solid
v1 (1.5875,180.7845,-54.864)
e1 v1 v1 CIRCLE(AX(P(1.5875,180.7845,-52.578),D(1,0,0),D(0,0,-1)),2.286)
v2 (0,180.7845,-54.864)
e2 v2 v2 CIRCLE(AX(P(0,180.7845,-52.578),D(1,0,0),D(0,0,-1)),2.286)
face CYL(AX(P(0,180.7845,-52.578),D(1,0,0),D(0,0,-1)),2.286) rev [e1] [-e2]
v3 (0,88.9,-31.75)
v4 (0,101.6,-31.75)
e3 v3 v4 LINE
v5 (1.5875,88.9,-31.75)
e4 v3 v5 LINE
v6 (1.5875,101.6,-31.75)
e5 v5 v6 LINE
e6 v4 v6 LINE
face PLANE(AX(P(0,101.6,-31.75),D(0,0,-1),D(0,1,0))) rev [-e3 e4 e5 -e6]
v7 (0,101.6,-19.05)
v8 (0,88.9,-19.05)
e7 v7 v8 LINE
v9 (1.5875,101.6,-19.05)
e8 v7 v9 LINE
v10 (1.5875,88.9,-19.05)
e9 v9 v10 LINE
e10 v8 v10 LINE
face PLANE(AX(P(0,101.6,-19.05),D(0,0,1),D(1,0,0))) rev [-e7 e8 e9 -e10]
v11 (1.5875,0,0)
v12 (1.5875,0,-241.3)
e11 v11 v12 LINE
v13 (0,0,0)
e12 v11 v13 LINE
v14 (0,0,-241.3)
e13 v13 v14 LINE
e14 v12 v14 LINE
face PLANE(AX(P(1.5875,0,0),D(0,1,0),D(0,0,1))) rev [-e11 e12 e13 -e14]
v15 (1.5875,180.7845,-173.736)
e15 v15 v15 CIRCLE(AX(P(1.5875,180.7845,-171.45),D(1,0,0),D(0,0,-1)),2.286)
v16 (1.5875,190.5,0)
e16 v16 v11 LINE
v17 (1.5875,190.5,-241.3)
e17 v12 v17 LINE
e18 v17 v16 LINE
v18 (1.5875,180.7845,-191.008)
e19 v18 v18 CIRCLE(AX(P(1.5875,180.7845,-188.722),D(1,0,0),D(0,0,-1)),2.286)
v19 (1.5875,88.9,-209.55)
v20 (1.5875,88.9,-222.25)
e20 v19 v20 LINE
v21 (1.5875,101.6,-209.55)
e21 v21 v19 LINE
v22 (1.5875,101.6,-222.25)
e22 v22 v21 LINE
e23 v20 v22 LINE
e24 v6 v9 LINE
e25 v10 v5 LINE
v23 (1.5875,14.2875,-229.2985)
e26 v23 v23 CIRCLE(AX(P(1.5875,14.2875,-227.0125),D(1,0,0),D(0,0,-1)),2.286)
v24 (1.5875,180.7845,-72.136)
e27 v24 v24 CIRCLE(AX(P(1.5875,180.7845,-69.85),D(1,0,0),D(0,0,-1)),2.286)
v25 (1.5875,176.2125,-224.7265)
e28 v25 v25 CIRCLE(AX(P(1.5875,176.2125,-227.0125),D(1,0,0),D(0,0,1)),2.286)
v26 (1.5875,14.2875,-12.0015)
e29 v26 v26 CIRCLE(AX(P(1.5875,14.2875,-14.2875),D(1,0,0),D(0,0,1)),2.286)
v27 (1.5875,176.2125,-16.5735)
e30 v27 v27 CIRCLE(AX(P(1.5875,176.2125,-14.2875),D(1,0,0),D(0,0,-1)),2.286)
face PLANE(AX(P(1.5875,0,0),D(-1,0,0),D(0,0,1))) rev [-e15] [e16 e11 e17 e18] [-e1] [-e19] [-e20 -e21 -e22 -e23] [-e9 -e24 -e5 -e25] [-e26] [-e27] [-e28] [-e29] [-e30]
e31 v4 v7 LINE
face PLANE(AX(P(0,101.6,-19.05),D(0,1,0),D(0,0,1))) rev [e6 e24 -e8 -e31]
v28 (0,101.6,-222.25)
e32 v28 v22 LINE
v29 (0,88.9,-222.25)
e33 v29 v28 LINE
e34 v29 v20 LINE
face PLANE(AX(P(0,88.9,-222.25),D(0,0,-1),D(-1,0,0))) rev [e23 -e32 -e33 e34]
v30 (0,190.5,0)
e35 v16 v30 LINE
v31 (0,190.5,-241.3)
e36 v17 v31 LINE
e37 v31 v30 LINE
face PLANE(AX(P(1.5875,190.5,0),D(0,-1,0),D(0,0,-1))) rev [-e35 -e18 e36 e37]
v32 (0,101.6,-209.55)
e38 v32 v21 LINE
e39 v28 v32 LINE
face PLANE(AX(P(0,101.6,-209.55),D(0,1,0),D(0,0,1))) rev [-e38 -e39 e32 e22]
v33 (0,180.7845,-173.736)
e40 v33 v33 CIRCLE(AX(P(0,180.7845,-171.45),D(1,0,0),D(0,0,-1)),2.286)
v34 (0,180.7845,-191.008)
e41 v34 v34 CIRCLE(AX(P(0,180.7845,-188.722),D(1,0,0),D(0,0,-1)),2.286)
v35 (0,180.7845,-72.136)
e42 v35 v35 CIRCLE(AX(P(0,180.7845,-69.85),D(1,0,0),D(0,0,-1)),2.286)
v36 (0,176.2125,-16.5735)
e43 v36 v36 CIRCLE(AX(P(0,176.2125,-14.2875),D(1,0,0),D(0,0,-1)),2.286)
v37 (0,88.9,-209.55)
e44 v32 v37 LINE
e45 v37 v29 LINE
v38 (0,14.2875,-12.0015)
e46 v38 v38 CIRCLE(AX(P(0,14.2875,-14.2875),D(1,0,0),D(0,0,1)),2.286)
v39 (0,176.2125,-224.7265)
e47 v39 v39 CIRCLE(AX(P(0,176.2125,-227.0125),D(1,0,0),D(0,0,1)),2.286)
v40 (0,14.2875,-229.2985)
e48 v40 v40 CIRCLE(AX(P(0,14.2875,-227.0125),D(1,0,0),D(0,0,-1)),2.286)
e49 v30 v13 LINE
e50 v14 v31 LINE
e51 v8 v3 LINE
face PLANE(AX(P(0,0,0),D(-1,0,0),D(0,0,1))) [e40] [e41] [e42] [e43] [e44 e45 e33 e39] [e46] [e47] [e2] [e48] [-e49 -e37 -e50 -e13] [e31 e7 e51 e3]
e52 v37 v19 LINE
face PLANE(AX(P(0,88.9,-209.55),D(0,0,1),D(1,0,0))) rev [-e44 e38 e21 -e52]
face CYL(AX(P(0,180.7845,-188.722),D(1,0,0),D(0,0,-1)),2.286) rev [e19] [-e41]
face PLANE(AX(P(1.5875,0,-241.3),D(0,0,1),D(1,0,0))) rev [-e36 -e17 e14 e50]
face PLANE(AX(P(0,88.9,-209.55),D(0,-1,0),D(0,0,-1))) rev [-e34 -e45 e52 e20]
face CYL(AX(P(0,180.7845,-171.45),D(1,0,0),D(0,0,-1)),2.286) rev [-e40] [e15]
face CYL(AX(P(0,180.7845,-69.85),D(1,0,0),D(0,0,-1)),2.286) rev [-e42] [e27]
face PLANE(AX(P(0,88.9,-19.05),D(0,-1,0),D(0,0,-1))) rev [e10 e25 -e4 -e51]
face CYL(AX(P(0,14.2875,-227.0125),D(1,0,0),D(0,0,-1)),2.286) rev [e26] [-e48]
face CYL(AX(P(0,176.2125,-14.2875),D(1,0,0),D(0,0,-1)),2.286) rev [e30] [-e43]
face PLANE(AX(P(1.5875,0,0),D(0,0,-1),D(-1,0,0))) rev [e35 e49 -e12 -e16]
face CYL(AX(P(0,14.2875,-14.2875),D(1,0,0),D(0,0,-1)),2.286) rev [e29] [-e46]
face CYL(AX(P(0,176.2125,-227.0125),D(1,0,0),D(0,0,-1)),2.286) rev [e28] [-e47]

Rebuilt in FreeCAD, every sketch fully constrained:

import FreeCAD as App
import Part
import Sketcher
Q = App.Units.Quantity


def add_polygon(sketch, points):
    """Adds a closed chain of lines whose ends are joined by coincident constraints."""
    first, n = sketch.GeometryCount, len(points)
    for a, b in zip(points, points[1:] + points[:1]):
        sketch.addGeometry(Part.LineSegment(App.Vector(*a, 0), App.Vector(*b, 0)), False)
    for i in range(n):
        sketch.addConstraint(Sketcher.Constraint("Coincident", first + i, 2, first + (i + 1) % n, 1))

doc = App.newDocument("Part")
body = doc.addObject("PartDesign::Body", "Body")

sketch1 = body.newObject("Sketcher::SketchObject", "Sketch")
sketch1.AttachmentSupport = (doc.getObject("YZ_Plane"), [""])
sketch1.MapMode = "FlatFace"
add_polygon(sketch1, [(190, 0), (0, 0), (0, -241), (190, -241)])
sketch1.addConstraint(Sketcher.Constraint("Horizontal", 0))
sketch1.addConstraint(Sketcher.Constraint("Vertical", 1))
sketch1.addConstraint(Sketcher.Constraint("Horizontal", 2))
sketch1.addConstraint(Sketcher.Constraint("Vertical", 3))
sketch1.addConstraint(Sketcher.Constraint("Coincident", 0, 2, -1, 1))
sketch1.addConstraint(Sketcher.Constraint("DistanceX", 0, 2, 0, 1, Q("7.5 in")))
sketch1.addConstraint(Sketcher.Constraint("DistanceY", 1, 2, 1, 1, Q("9.5 in")))
pad1 = body.newObject("PartDesign::Pad", "Pad")
pad1.Profile = sketch1
pad1.Length = Q("0.0625 in")

sketch2 = body.newObject("Sketcher::SketchObject", "Sketch001")
sketch2.AttachmentSupport = (doc.getObject("YZ_Plane"), [""])
sketch2.MapMode = "FlatFace"
sketch2.AttachmentOffset = App.Placement(App.Vector(0, 0, 0.0625 * 25.4), App.Rotation())
sketch2.addGeometry(Part.Circle(App.Vector(14.3, -227, 0), App.Vector(0, 0, 1), 2.3), False)
sketch2.addGeometry(Part.Circle(App.Vector(176.2, -227, 0), App.Vector(0, 0, 1), 2.3), False)
sketch2.addGeometry(Part.Circle(App.Vector(14.3, -14.3, 0), App.Vector(0, 0, 1), 2.3), False)
sketch2.addGeometry(Part.Circle(App.Vector(176.2, -14.3, 0), App.Vector(0, 0, 1), 2.3), False)
sketch2.addConstraint(Sketcher.Constraint("Equal", 0, 1))
sketch2.addConstraint(Sketcher.Constraint("Equal", 1, 2))
sketch2.addConstraint(Sketcher.Constraint("Equal", 2, 3))
sketch2.addConstraint(Sketcher.Constraint("Horizontal", 0, 3, 1, 3))
sketch2.addConstraint(Sketcher.Constraint("Horizontal", 2, 3, 3, 3))
sketch2.addConstraint(Sketcher.Constraint("Vertical", 0, 3, 2, 3))
sketch2.addConstraint(Sketcher.Constraint("Vertical", 1, 3, 3, 3))
sketch2.addConstraint(Sketcher.Constraint("Diameter", 0, Q("0.18 in")))
sketch2.addConstraint(Sketcher.Constraint("DistanceX", -1, 1, 0, 3, Q("0.5625 in")))
sketch2.addConstraint(Sketcher.Constraint("DistanceY", 0, 3, -1, 1, Q("8.9375 in")))
sketch2.addConstraint(Sketcher.Constraint("DistanceX", -1, 1, 1, 3, Q("6.9375 in")))
sketch2.addConstraint(Sketcher.Constraint("DistanceY", 2, 3, -1, 1, Q("0.5625 in")))
pocket1 = body.newObject("PartDesign::Pocket", "Pocket")
pocket1.Profile = sketch2
pocket1.Type = "ThroughAll"

sketch3 = body.newObject("Sketcher::SketchObject", "Sketch002")
sketch3.AttachmentSupport = (doc.getObject("YZ_Plane"), [""])
sketch3.MapMode = "FlatFace"
sketch3.AttachmentOffset = App.Placement(App.Vector(0, 0, 0.0625 * 25.4), App.Rotation())
sketch3.addGeometry(Part.Circle(App.Vector(180.8, -52.6, 0), App.Vector(0, 0, 1), 2.3), False)
sketch3.addGeometry(Part.Circle(App.Vector(180.8, -69.8, 0), App.Vector(0, 0, 1), 2.3), False)
sketch3.addGeometry(Part.Circle(App.Vector(180.8, -171.4, 0), App.Vector(0, 0, 1), 2.3), False)
sketch3.addGeometry(Part.Circle(App.Vector(180.8, -188.7, 0), App.Vector(0, 0, 1), 2.3), False)
sketch3.addConstraint(Sketcher.Constraint("Equal", 0, 1))
sketch3.addConstraint(Sketcher.Constraint("Equal", 1, 2))
sketch3.addConstraint(Sketcher.Constraint("Equal", 2, 3))
sketch3.addConstraint(Sketcher.Constraint("Vertical", 0, 3, 1, 3))
sketch3.addConstraint(Sketcher.Constraint("Vertical", 1, 3, 2, 3))
sketch3.addConstraint(Sketcher.Constraint("Vertical", 2, 3, 3, 3))
sketch3.addConstraint(Sketcher.Constraint("Diameter", 0, Q("0.18 in")))
sketch3.addConstraint(Sketcher.Constraint("DistanceY", 2, 3, 1, 3, Q("4 in")))
sketch3.addConstraint(Sketcher.Constraint("DistanceY", 0, 3, -1, 1, Q("2.07 in")))
sketch3.addConstraint(Sketcher.Constraint("DistanceY", 1, 3, -1, 1, Q("2.75 in")))
sketch3.addConstraint(Sketcher.Constraint("DistanceY", 3, 3, -1, 1, Q("7.43 in")))
sketch3.addConstraint(Sketcher.Constraint("DistanceX", -1, 1, 0, 3, Q("7.1175 in")))
pocket2 = body.newObject("PartDesign::Pocket", "Pocket001")
pocket2.Profile = sketch3
pocket2.Type = "ThroughAll"

sketch4 = body.newObject("Sketcher::SketchObject", "Sketch003")
sketch4.AttachmentSupport = (doc.getObject("YZ_Plane"), [""])
sketch4.MapMode = "FlatFace"
sketch4.AttachmentOffset = App.Placement(App.Vector(0, 0, 0.0625 * 25.4), App.Rotation())
add_polygon(sketch4, [(102, -19), (89, -19), (89, -32), (102, -32)])
add_polygon(sketch4, [(102, -210), (89, -210), (89, -222), (102, -222)])
sketch4.addConstraint(Sketcher.Constraint("Horizontal", 0))
sketch4.addConstraint(Sketcher.Constraint("Vertical", 1))
sketch4.addConstraint(Sketcher.Constraint("Horizontal", 2))
sketch4.addConstraint(Sketcher.Constraint("Vertical", 3))
sketch4.addConstraint(Sketcher.Constraint("Horizontal", 4))
sketch4.addConstraint(Sketcher.Constraint("Vertical", 5))
sketch4.addConstraint(Sketcher.Constraint("Horizontal", 6))
sketch4.addConstraint(Sketcher.Constraint("Vertical", 7))
sketch4.addConstraint(Sketcher.Constraint("Vertical", 1, 2, 4, 2))
sketch4.addConstraint(Sketcher.Constraint("Vertical", 3, 2, 6, 2))
sketch4.addConstraint(Sketcher.Constraint("Equal", 6, 1))
sketch4.addConstraint(Sketcher.Constraint("Equal", 3, 5))
sketch4.addConstraint(Sketcher.Constraint("DistanceX", 0, 2, 0, 1, Q("0.5 in")))
sketch4.addConstraint(Sketcher.Constraint("DistanceX", -1, 1, 2, 2, Q("4 in")))
sketch4.addConstraint(Sketcher.Constraint("DistanceY", 4, 2, 1, 2, Q("7 in")))
sketch4.addConstraint(Sketcher.Constraint("DistanceY", 0, 2, -1, 1, Q("0.75 in")))
pocket3 = body.newObject("PartDesign::Pocket", "Pocket002")
pocket3.Profile = sketch4
pocket3.Type = "ThroughAll"

doc.recompute()
